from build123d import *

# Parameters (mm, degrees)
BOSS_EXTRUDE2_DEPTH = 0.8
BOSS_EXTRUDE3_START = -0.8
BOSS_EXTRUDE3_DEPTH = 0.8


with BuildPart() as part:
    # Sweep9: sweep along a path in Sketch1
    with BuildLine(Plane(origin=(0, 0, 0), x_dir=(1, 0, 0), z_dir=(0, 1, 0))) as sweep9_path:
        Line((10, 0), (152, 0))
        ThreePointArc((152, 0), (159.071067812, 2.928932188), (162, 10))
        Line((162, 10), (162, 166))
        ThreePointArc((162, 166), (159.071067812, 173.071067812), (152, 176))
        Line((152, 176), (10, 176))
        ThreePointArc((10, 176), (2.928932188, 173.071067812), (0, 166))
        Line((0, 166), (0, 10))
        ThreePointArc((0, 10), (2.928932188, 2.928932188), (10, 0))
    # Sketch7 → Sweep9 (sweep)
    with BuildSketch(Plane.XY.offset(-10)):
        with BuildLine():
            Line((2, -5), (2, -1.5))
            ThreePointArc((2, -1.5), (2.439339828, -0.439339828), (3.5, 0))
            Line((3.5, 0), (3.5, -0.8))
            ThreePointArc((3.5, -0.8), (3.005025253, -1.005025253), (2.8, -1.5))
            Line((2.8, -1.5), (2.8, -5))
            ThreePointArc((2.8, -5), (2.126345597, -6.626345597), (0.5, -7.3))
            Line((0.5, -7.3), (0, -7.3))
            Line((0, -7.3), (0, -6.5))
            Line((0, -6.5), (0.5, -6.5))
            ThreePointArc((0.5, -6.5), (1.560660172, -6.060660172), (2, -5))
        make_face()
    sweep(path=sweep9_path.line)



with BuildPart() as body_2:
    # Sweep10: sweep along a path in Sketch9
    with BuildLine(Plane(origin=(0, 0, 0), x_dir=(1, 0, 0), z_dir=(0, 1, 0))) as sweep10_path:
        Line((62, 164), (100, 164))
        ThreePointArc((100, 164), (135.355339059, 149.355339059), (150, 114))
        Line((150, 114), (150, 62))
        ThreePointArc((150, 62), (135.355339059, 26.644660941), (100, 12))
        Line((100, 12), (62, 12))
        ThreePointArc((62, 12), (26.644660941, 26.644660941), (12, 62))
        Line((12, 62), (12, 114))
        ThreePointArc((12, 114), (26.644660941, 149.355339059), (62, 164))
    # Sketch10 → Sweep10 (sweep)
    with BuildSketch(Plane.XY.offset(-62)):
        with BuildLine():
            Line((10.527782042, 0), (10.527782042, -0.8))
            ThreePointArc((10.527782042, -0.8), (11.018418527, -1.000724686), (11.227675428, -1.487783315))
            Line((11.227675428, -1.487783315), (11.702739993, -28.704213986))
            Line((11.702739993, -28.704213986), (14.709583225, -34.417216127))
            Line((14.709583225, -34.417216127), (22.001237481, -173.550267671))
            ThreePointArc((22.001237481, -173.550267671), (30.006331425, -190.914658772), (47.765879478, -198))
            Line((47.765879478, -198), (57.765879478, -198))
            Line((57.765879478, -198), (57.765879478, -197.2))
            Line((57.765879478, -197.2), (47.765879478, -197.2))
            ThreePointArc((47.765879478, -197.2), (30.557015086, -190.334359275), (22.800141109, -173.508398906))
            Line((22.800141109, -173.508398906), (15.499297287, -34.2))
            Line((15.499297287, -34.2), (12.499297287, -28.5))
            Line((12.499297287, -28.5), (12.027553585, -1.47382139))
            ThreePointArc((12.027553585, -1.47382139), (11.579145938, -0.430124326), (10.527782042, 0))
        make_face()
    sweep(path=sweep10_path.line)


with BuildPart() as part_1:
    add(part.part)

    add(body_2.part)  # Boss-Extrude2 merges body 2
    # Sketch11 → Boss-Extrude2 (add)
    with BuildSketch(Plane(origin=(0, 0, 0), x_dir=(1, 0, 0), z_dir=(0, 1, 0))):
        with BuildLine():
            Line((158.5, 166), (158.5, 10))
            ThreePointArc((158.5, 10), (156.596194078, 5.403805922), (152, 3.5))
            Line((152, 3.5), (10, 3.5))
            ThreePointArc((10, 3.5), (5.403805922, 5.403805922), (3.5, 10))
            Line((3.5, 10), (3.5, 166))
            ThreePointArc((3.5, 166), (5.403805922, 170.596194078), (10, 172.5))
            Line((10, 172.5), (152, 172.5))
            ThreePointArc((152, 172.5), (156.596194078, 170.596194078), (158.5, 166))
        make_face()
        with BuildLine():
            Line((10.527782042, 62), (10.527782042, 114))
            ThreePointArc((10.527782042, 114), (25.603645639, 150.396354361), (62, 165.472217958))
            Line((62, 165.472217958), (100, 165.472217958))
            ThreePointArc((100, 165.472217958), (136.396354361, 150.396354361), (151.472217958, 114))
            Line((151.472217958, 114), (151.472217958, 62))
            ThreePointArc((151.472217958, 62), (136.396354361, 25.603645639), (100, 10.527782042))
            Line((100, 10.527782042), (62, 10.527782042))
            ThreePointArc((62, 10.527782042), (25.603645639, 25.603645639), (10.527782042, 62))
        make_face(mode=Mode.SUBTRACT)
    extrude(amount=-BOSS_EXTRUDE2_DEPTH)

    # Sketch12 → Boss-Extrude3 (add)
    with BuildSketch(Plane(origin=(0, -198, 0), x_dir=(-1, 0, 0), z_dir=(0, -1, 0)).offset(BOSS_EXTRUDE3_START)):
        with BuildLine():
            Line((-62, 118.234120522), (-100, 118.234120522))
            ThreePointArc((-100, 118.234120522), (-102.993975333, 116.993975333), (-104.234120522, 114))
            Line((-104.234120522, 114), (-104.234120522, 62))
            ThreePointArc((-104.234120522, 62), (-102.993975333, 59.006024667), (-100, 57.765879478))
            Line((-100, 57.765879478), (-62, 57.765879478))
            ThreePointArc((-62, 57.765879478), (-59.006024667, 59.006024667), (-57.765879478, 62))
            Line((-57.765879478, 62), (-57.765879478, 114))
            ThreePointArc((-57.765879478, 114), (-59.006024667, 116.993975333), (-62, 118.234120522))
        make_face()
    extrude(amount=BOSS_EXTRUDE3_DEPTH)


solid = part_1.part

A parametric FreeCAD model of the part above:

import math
import FreeCAD as App
import Part
import Sketcher
Q = App.Units.Quantity

doc = App.newDocument("Part")
body = doc.addObject("PartDesign::Body", "Body")

sketch1 = body.newObject("Sketcher::SketchObject", "Sketch")
sketch1.AttachmentSupport = (doc.getObject("XY_Plane"), [""])
sketch1.MapMode = "FlatFace"
sketch1.AttachmentOffset = App.Placement(App.Vector(0, 0, -10), App.Rotation())
sketch1.addGeometry([
    Part.LineSegment(App.Vector(2, -1.5, 0), App.Vector(2, -5, 0)),
    Part.ArcOfCircle(Part.Circle(App.Vector(0.5, -5, 0), App.Vector(0, 0, 1), 1.5), math.radians(-90), math.radians(0)),
    Part.LineSegment(App.Vector(0.5, -6.5, 0), App.Vector(0, -6.5, 0)),
    Part.LineSegment(App.Vector(0, -6.5, 0), App.Vector(0, -7.3, 0)),
    Part.LineSegment(App.Vector(0, -7.3, 0), App.Vector(0.5, -7.3, 0)),
    Part.ArcOfCircle(Part.Circle(App.Vector(0.5, -5, 0), App.Vector(0, 0, 1), 2.3), math.radians(-90), math.radians(0)),
    Part.LineSegment(App.Vector(2.8, -5, 0), App.Vector(2.8, -1.5, 0)),
    Part.ArcOfCircle(Part.Circle(App.Vector(3.5, -1.5, 0), App.Vector(0, 0, 1), 0.7), math.radians(90), math.radians(180)),
    Part.LineSegment(App.Vector(3.5, -0.8, 0), App.Vector(3.5, 0, 0)),
    Part.ArcOfCircle(Part.Circle(App.Vector(3.5, -1.5, 0), App.Vector(0, 0, 1), 1.5), math.radians(90), math.radians(180)),
], False)
sketch1.addConstraint([
    Sketcher.Constraint("Tangent", 0, 2, 1, 2),
    Sketcher.Constraint("Tangent", 1, 1, 2, 1),
    Sketcher.Constraint("Coincident", 2, 2, 3, 1),
    Sketcher.Constraint("Coincident", 3, 2, 4, 1),
    Sketcher.Constraint("Tangent", 4, 2, 5, 1),
    Sketcher.Constraint("Tangent", 5, 2, 6, 1),
    Sketcher.Constraint("Tangent", 6, 2, 7, 2),
    Sketcher.Constraint("Coincident", 7, 1, 8, 1),
    Sketcher.Constraint("Coincident", 8, 2, 9, 1),
    Sketcher.Constraint("Tangent", 9, 2, 0, 1),
    Sketcher.Constraint("Vertical", 0),
    Sketcher.Constraint("Horizontal", 2),
    Sketcher.Constraint("Vertical", 3),
    Sketcher.Constraint("Horizontal", 4),
    Sketcher.Constraint("Vertical", 6),
    Sketcher.Constraint("Vertical", 8),
    Sketcher.Constraint("Coincident", 5, 3, 1, 3),
    Sketcher.Constraint("Coincident", 9, 3, 7, 3),
    Sketcher.Constraint("Equal", 1, 9),
    Sketcher.Constraint("PointOnObject", 2, 2, -2),
    Sketcher.Constraint("PointOnObject", 8, 2, -1),
    Sketcher.Constraint("Vertical", 9, 3, 7, 1),
    Sketcher.Constraint("Radius", 1, 1.5),
    Sketcher.Constraint("Radius", 5, 2.3),
    Sketcher.Constraint("DistanceX", 2, 2, 2, 1, 0.5),
    Sketcher.Constraint("DistanceY", 0, 2, 0, 1, 3.5),
])

sketch2 = body.newObject("Sketcher::SketchObject", "Sketch001")
sketch2.AttachmentSupport = (doc.getObject("XZ_Plane"), [""])
sketch2.MapMode = "FlatFace"
sketch2.addGeometry([
    Part.LineSegment(App.Vector(10, 0, 0), App.Vector(152, 0, 0)),
    Part.ArcOfCircle(Part.Circle(App.Vector(152, -10, 0), App.Vector(0, 0, 1), 10), math.radians(0), math.radians(90)),
    Part.LineSegment(App.Vector(162, -10, 0), App.Vector(162, -166, 0)),
    Part.ArcOfCircle(Part.Circle(App.Vector(152, -166, 0), App.Vector(0, 0, 1), 10), math.radians(-90), math.radians(0)),
    Part.LineSegment(App.Vector(152, -176, 0), App.Vector(10, -176, 0)),
    Part.ArcOfCircle(Part.Circle(App.Vector(10, -166, 0), App.Vector(0, 0, 1), 10), math.radians(180), math.radians(270)),
    Part.LineSegment(App.Vector(0, -166, 0), App.Vector(0, -10, 0)),
    Part.ArcOfCircle(Part.Circle(App.Vector(10, -10, 0), App.Vector(0, 0, 1), 10), math.radians(90), math.radians(180)),
], False)
sketch2.addConstraint([
    Sketcher.Constraint("Tangent", 0, 2, 1, 2),
    Sketcher.Constraint("Tangent", 1, 1, 2, 1),
    Sketcher.Constraint("Tangent", 2, 2, 3, 2),
    Sketcher.Constraint("Tangent", 3, 1, 4, 1),
    Sketcher.Constraint("Tangent", 4, 2, 5, 2),
    Sketcher.Constraint("Tangent", 5, 1, 6, 1),
    Sketcher.Constraint("Tangent", 6, 2, 7, 2),
    Sketcher.Constraint("Tangent", 7, 1, 0, 1),
    Sketcher.Constraint("Horizontal", 0),
    Sketcher.Constraint("Vertical", 2),
    Sketcher.Constraint("Horizontal", 4),
    Sketcher.Constraint("Vertical", 6),
    Sketcher.Constraint("Equal", 1, 3),
    Sketcher.Constraint("Equal", 3, 5),
    Sketcher.Constraint("Equal", 5, 7),
    Sketcher.Constraint("PointOnObject", 0, 2, -1),
    Sketcher.Constraint("PointOnObject", 5, 1, -2),
    Sketcher.Constraint("Radius", 1, 10.0),
    Sketcher.Constraint("DistanceX", 0, 1, 0, 2, 142.0),
    Sketcher.Constraint("DistanceY", 2, 2, 2, 1, 156.0),
])
doc.recompute()

additivepipe = body.newObject("PartDesign::AdditivePipe", "AdditivePipe")
additivepipe.Profile = sketch1
additivepipe.Spine = (sketch2, ["Edge1", "Edge2", "Edge3", "Edge4", "Edge5", "Edge6", "Edge7", "Edge8"])
body2 = doc.addObject("PartDesign::Body", "Body001")

sketch3 = body2.newObject("Sketcher::SketchObject", "Sketch002")
sketch3.AttachmentSupport = (doc.getObject("XY_Plane001"), [""])
sketch3.MapMode = "FlatFace"
sketch3.AttachmentOffset = App.Placement(App.Vector(0, 0, -62), App.Rotation())
sketch3.addGeometry([
    Part.LineSegment(App.Vector(10.527782, 0, 0), App.Vector(10.527782, -0.8, 0)),
    Part.ArcOfCircle(Part.Circle(App.Vector(10.527782, -1.5, 0), App.Vector(0, 0, 1), 0.7), math.radians(1), math.radians(90)),
    Part.LineSegment(App.Vector(11.227675, -1.487783, 0), App.Vector(11.70274, -28.704214, 0)),
    Part.LineSegment(App.Vector(11.70274, -28.704214, 0), App.Vector(14.709583, -34.417216, 0)),
    Part.LineSegment(App.Vector(14.709583, -34.417216, 0), App.Vector(22.001237, -173.550268, 0)),
    Part.ArcOfCircle(Part.Circle(App.Vector(47.765879, -172.2, 0), App.Vector(0, 0, 1), 25.8), math.radians(-177), math.radians(-90)),
    Part.LineSegment(App.Vector(47.765879, -198, 0), App.Vector(57.765879, -198, 0)),
    Part.LineSegment(App.Vector(57.765879, -198, 0), App.Vector(57.765879, -197.2, 0)),
    Part.LineSegment(App.Vector(57.765879, -197.2, 0), App.Vector(47.765879, -197.2, 0)),
    Part.ArcOfCircle(Part.Circle(App.Vector(47.765879, -172.2, 0), App.Vector(0, 0, 1), 25), math.radians(-177), math.radians(-90)),
    Part.LineSegment(App.Vector(22.800141, -173.508399, 0), App.Vector(15.499297, -34.2, 0)),
    Part.LineSegment(App.Vector(15.499297, -34.2, 0), App.Vector(12.499297, -28.5, 0)),
    Part.LineSegment(App.Vector(12.499297, -28.5, 0), App.Vector(12.027554, -1.473821, 0)),
    Part.ArcOfCircle(Part.Circle(App.Vector(10.527782, -1.5, 0), App.Vector(0, 0, 1), 1.5), math.radians(1), math.radians(90)),
], False)
sketch3.addConstraint([
    Sketcher.Constraint("Coincident", 0, 2, 1, 2),
    Sketcher.Constraint("Tangent", 1, 1, 2, 1),
    Sketcher.Constraint("Coincident", 2, 2, 3, 1),
    Sketcher.Constraint("Coincident", 3, 2, 4, 1),
    Sketcher.Constraint("Tangent", 4, 2, 5, 1),
    Sketcher.Constraint("Tangent", 5, 2, 6, 1),
    Sketcher.Constraint("Coincident", 6, 2, 7, 1),
    Sketcher.Constraint("Coincident", 7, 2, 8, 1),
    Sketcher.Constraint("Tangent", 8, 2, 9, 2),
    Sketcher.Constraint("Tangent", 9, 1, 10, 1),
    Sketcher.Constraint("Coincident", 10, 2, 11, 1),
    Sketcher.Constraint("Coincident", 11, 2, 12, 1),
    Sketcher.Constraint("Tangent", 12, 2, 13, 1),
    Sketcher.Constraint("Coincident", 13, 2, 0, 1),
    Sketcher.Constraint("Vertical", 0),
    Sketcher.Constraint("Horizontal", 6),
    Sketcher.Constraint("Vertical", 7),
    Sketcher.Constraint("Horizontal", 8),
    Sketcher.Constraint("Coincident", 9, 3, 5, 3),
    Sketcher.Constraint("Coincident", 13, 3, 1, 3),
    Sketcher.Constraint("PointOnObject", 13, 2, -1),
    Sketcher.Constraint("Parallel", 4, 10),
    Sketcher.Constraint("Parallel", 3, 11),
    Sketcher.Constraint("Parallel", 2, 12),
    Sketcher.Constraint("Vertical", 13, 3, 0, 2),
    Sketcher.Constraint("Equal", 0, 7),
    Sketcher.Constraint("Radius", 9, 25.0),
    Sketcher.Constraint("Radius", 1, 0.7),
    Sketcher.Constraint("Radius", 5, 25.8),
    Sketcher.Constraint("DistanceX", 6, 1, 6, 2, 10.0),
    Sketcher.Constraint("Angle", 2, Q("-89 deg")),
    Sketcher.Constraint("Angle", 4, Q("-87 deg")),
    Sketcher.Constraint("DistanceY", 5, 2, -1, 1, 198.0),
    Sketcher.Constraint("DistanceX", 11, 2, 10, 2, 3.0),
    Sketcher.Constraint("DistanceY", 11, 2, 13, 3, 27.0),
    Sketcher.Constraint("DistanceY", 10, 2, -1, 1, 34.2),
    Sketcher.Constraint("DistanceX", 13, 3, 3, 2, 4.181801),
    Sketcher.Constraint("DistanceX", -1, 1, 5, 3, 47.765879),
])

sketch4 = body2.newObject("Sketcher::SketchObject", "Sketch003")
sketch4.AttachmentSupport = (doc.getObject("XZ_Plane001"), [""])
sketch4.MapMode = "FlatFace"
sketch4.addGeometry([
    Part.LineSegment(App.Vector(62, -164, 0), App.Vector(100, -164, 0)),
    Part.ArcOfCircle(Part.Circle(App.Vector(100, -114, 0), App.Vector(0, 0, 1), 50), math.radians(-90), math.radians(0)),
    Part.LineSegment(App.Vector(150, -114, 0), App.Vector(150, -62, 0)),
    Part.ArcOfCircle(Part.Circle(App.Vector(100, -62, 0), App.Vector(0, 0, 1), 50), math.radians(0), math.radians(90)),
    Part.LineSegment(App.Vector(100, -12, 0), App.Vector(62, -12, 0)),
    Part.ArcOfCircle(Part.Circle(App.Vector(62, -62, 0), App.Vector(0, 0, 1), 50), math.radians(90), math.radians(180)),
    Part.LineSegment(App.Vector(12, -62, 0), App.Vector(12, -114, 0)),
    Part.ArcOfCircle(Part.Circle(App.Vector(62, -114, 0), App.Vector(0, 0, 1), 50), math.radians(-180), math.radians(-90)),
], False)
sketch4.addConstraint([
    Sketcher.Constraint("Tangent", 0, 2, 1, 1),
    Sketcher.Constraint("Tangent", 1, 2, 2, 1),
    Sketcher.Constraint("Tangent", 2, 2, 3, 1),
    Sketcher.Constraint("Tangent", 3, 2, 4, 1),
    Sketcher.Constraint("Tangent", 4, 2, 5, 1),
    Sketcher.Constraint("Tangent", 5, 2, 6, 1),
    Sketcher.Constraint("Tangent", 6, 2, 7, 1),
    Sketcher.Constraint("Tangent", 7, 2, 0, 1),
    Sketcher.Constraint("Horizontal", 0),
    Sketcher.Constraint("Vertical", 2),
    Sketcher.Constraint("Horizontal", 4),
    Sketcher.Constraint("Vertical", 6),
    Sketcher.Constraint("Equal", 1, 3),
    Sketcher.Constraint("Equal", 3, 5),
    Sketcher.Constraint("Equal", 5, 7),
    Sketcher.Constraint("Radius", 1, 50.0),
    Sketcher.Constraint("DistanceX", 0, 1, 0, 2, 38.0),
    Sketcher.Constraint("DistanceY", 2, 1, 2, 2, 52.0),
    Sketcher.Constraint("DistanceX", -1, 1, 1, 3, 100.0),
    Sketcher.Constraint("DistanceY", 1, 3, -1, 1, 114.0),
])
doc.recompute()

additivepipe2 = body2.newObject("PartDesign::AdditivePipe", "AdditivePipe001")
additivepipe2.Profile = sketch3
additivepipe2.Spine = (sketch4, ["Edge1", "Edge2", "Edge3", "Edge4", "Edge5", "Edge6", "Edge7", "Edge8"])
body.AllowCompound = True
doc.recompute()

boolean = body.newObject("PartDesign::Boolean", "Boolean")
boolean.Type = "Fuse"
boolean.addObjects([body2])

sketch5 = body.newObject("Sketcher::SketchObject", "Sketch004")
sketch5.AttachmentSupport = (doc.getObject("XZ_Plane"), [""])
sketch5.MapMode = "FlatFace"
sketch5.addGeometry([
    Part.LineSegment(App.Vector(158.5, -10, 0), App.Vector(158.5, -166, 0)),
    Part.ArcOfCircle(Part.Circle(App.Vector(152, -166, 0), App.Vector(0, 0, 1), 6.5), math.radians(-90), math.radians(0)),
    Part.LineSegment(App.Vector(152, -172.5, 0), App.Vector(10, -172.5, 0)),
    Part.ArcOfCircle(Part.Circle(App.Vector(10, -166, 0), App.Vector(0, 0, 1), 6.5), math.radians(180), math.radians(270)),
    Part.LineSegment(App.Vector(3.5, -166, 0), App.Vector(3.5, -10, 0)),
    Part.ArcOfCircle(Part.Circle(App.Vector(10, -10, 0), App.Vector(0, 0, 1), 6.5), math.radians(90), math.radians(180)),
    Part.LineSegment(App.Vector(10, -3.5, 0), App.Vector(152, -3.5, 0)),
    Part.ArcOfCircle(Part.Circle(App.Vector(152, -10, 0), App.Vector(0, 0, 1), 6.5), math.radians(0), math.radians(90)),
    Part.LineSegment(App.Vector(10.527782, -62, 0), App.Vector(10.527782, -114, 0)),
    Part.ArcOfCircle(Part.Circle(App.Vector(62, -114, 0), App.Vector(0, 0, 1), 51.472218), math.radians(180), math.radians(270)),
    Part.LineSegment(App.Vector(62, -165.472218, 0), App.Vector(100, -165.472218, 0)),
    Part.ArcOfCircle(Part.Circle(App.Vector(100, -114, 0), App.Vector(0, 0, 1), 51.472218), math.radians(-90), math.radians(0)),
    Part.LineSegment(App.Vector(151.472218, -114, 0), App.Vector(151.472218, -62, 0)),
    Part.ArcOfCircle(Part.Circle(App.Vector(100, -62, 0), App.Vector(0, 0, 1), 51.472218), math.radians(0), math.radians(90)),
    Part.LineSegment(App.Vector(100, -10.527782, 0), App.Vector(62, -10.527782, 0)),
    Part.ArcOfCircle(Part.Circle(App.Vector(62, -62, 0), App.Vector(0, 0, 1), 51.472218), math.radians(90), math.radians(180)),
], False)
sketch5.addConstraint([
    Sketcher.Constraint("Tangent", 0, 2, 1, 2),
    Sketcher.Constraint("Tangent", 1, 1, 2, 1),
    Sketcher.Constraint("Tangent", 2, 2, 3, 2),
    Sketcher.Constraint("Tangent", 3, 1, 4, 1),
    Sketcher.Constraint("Tangent", 4, 2, 5, 2),
    Sketcher.Constraint("Tangent", 5, 1, 6, 1),
    Sketcher.Constraint("Tangent", 6, 2, 7, 2),
    Sketcher.Constraint("Tangent", 7, 1, 0, 1),
    Sketcher.Constraint("Tangent", 8, 2, 9, 1),
    Sketcher.Constraint("Tangent", 9, 2, 10, 1),
    Sketcher.Constraint("Tangent", 10, 2, 11, 1),
    Sketcher.Constraint("Tangent", 11, 2, 12, 1),
    Sketcher.Constraint("Tangent", 12, 2, 13, 1),
    Sketcher.Constraint("Tangent", 13, 2, 14, 1),
    Sketcher.Constraint("Tangent", 14, 2, 15, 1),
    Sketcher.Constraint("Tangent", 15, 2, 8, 1),
    Sketcher.Constraint("Vertical", 0),
    Sketcher.Constraint("Horizontal", 2),
    Sketcher.Constraint("Vertical", 4),
    Sketcher.Constraint("Horizontal", 6),
    Sketcher.Constraint("Vertical", 8),
    Sketcher.Constraint("Horizontal", 10),
    Sketcher.Constraint("Vertical", 12),
    Sketcher.Constraint("Horizontal", 14),
    Sketcher.Constraint("Equal", 1, 3),
    Sketcher.Constraint("Equal", 3, 5),
    Sketcher.Constraint("Equal", 5, 7),
    Sketcher.Constraint("Equal", 9, 11),
    Sketcher.Constraint("Equal", 11, 13),
    Sketcher.Constraint("Equal", 13, 15),
    Sketcher.Constraint("Radius", 1, 6.5),
    Sketcher.Constraint("DistanceX", 2, 2, 2, 1, 142.0),
    Sketcher.Constraint("DistanceX", 10, 1, 10, 2, 38.0),
    Sketcher.Constraint("DistanceY", 0, 2, 0, 1, 156.0),
    Sketcher.Constraint("DistanceY", 8, 2, 8, 1, 52.0),
    Sketcher.Constraint("DistanceX", -1, 1, 1, 3, 152.0),
    Sketcher.Constraint("DistanceY", 1, 3, -1, 1, 166.0),
    Sketcher.Constraint("DistanceX", -1, 1, 9, 3, 62.0),
    Sketcher.Constraint("DistanceY", 9, 3, -1, 1, 114.0),
    Sketcher.Constraint("Radius", 9, 51.472218),
])
pad1 = body.newObject("PartDesign::Pad", "Pad")
pad1.Profile = sketch5
pad1.Length = 0.8

sketch6 = body.newObject("Sketcher::SketchObject", "Sketch005")
sketch6.AttachmentSupport = (doc.getObject("XZ_Plane"), [""])
sketch6.MapMode = "FlatFace"
sketch6.AttachmentOffset = App.Placement(App.Vector(0, 0, 197.2), App.Rotation())
sketch6.addGeometry([
    Part.LineSegment(App.Vector(62, -118.234121, 0), App.Vector(100, -118.234121, 0)),
    Part.ArcOfCircle(Part.Circle(App.Vector(100, -114, 0), App.Vector(0, 0, 1), 4.234121), math.radians(-90), math.radians(0)),
    Part.LineSegment(App.Vector(104.234121, -114, 0), App.Vector(104.234121, -62, 0)),
    Part.ArcOfCircle(Part.Circle(App.Vector(100, -62, 0), App.Vector(0, 0, 1), 4.234121), math.radians(0), math.radians(90)),
    Part.LineSegment(App.Vector(100, -57.765879, 0), App.Vector(62, -57.765879, 0)),
    Part.ArcOfCircle(Part.Circle(App.Vector(62, -62, 0), App.Vector(0, 0, 1), 4.234121), math.radians(90), math.radians(180)),
    Part.LineSegment(App.Vector(57.765879, -62, 0), App.Vector(57.765879, -114, 0)),
    Part.ArcOfCircle(Part.Circle(App.Vector(62, -114, 0), App.Vector(0, 0, 1), 4.234121), math.radians(-180), math.radians(-90)),
], False)
sketch6.addConstraint([
    Sketcher.Constraint("Tangent", 0, 2, 1, 1),
    Sketcher.Constraint("Tangent", 1, 2, 2, 1),
    Sketcher.Constraint("Tangent", 2, 2, 3, 1),
    Sketcher.Constraint("Tangent", 3, 2, 4, 1),
    Sketcher.Constraint("Tangent", 4, 2, 5, 1),
    Sketcher.Constraint("Tangent", 5, 2, 6, 1),
    Sketcher.Constraint("Tangent", 6, 2, 7, 1),
    Sketcher.Constraint("Tangent", 7, 2, 0, 1),
    Sketcher.Constraint("Horizontal", 0),
    Sketcher.Constraint("Vertical", 2),
    Sketcher.Constraint("Horizontal", 4),
    Sketcher.Constraint("Vertical", 6),
    Sketcher.Constraint("Equal", 1, 3),
    Sketcher.Constraint("Equal", 3, 5),
    Sketcher.Constraint("Equal", 5, 7),
    Sketcher.Constraint("DistanceX", 0, 1, 0, 2, 38.0),
    Sketcher.Constraint("DistanceY", 2, 1, 2, 2, 52.0),
    Sketcher.Constraint("DistanceX", -1, 1, 1, 3, 100.0),
    Sketcher.Constraint("DistanceY", 1, 3, -1, 1, 114.0),
    Sketcher.Constraint("Radius", 1, 4.234121),
])
pad2 = body.newObject("PartDesign::Pad", "Pad001")
pad2.Profile = sketch6
pad2.Length = 0.8

doc.recompute()
